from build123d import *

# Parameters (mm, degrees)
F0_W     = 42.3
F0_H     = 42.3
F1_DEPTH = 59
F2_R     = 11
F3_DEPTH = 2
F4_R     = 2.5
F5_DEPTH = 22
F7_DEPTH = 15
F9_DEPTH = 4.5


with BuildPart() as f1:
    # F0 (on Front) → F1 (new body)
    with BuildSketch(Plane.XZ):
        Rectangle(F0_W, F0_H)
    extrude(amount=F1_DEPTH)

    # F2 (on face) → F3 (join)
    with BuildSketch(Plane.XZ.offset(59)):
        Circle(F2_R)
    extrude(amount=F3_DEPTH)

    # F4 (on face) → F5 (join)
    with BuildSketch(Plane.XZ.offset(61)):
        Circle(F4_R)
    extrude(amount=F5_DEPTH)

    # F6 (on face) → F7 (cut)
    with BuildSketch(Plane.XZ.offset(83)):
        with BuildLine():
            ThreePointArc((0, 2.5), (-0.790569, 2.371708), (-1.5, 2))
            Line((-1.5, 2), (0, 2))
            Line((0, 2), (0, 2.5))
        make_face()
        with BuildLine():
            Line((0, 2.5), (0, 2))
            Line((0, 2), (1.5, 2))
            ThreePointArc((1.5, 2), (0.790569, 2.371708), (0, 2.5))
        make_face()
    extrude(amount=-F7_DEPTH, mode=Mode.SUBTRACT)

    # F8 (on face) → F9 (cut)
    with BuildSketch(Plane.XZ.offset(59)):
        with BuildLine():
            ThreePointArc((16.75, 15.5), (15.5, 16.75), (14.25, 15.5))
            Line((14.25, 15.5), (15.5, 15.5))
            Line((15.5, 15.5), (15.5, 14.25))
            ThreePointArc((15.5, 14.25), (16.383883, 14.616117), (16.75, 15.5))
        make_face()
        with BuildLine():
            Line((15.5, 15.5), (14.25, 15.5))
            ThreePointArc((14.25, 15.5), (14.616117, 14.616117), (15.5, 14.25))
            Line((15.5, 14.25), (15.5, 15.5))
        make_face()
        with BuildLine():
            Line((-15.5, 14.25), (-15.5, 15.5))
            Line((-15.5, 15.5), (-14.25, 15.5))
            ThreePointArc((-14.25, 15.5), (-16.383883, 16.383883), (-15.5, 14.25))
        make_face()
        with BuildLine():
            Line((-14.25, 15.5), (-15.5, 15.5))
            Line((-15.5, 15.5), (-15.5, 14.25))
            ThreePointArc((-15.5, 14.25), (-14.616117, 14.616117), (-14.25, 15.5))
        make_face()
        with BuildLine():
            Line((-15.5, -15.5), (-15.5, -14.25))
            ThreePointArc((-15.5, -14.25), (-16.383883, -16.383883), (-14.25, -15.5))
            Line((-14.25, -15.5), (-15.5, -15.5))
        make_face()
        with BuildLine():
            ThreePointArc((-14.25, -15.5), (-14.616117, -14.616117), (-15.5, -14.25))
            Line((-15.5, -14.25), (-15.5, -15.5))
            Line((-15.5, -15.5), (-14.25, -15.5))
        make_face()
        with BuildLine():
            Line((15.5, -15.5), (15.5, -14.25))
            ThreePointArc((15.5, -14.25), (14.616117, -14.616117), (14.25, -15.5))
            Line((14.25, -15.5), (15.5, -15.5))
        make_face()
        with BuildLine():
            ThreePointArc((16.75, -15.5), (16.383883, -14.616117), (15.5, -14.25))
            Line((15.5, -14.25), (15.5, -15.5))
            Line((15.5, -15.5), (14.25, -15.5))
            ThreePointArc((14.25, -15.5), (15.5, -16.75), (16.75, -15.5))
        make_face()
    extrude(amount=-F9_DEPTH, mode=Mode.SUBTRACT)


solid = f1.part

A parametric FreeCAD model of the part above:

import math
import FreeCAD as App
import Part
import Sketcher
from FreeCAD import Vector

doc = App.newDocument("Part")
body = doc.addObject("PartDesign::Body", "Body")

sketch1 = body.newObject("Sketcher::SketchObject", "Sketch")
sketch1.AttachmentSupport = (doc.getObject("XZ_Plane"), [""])
sketch1.MapMode = "FlatFace"
sketch1.addGeometry([
    Part.LineSegment(Vector(-21, 21, 0), Vector(-21, -21, 0)),
    Part.LineSegment(Vector(-21, -21, 0), Vector(21, -21, 0)),
    Part.LineSegment(Vector(21, -21, 0), Vector(21, 21, 0)),
    Part.LineSegment(Vector(21, 21, 0), Vector(-21, 21, 0)),
], False)
sketch1.addConstraint([
    Sketcher.Constraint("Coincident", 0, 2, 1, 1),
    Sketcher.Constraint("Coincident", 1, 2, 2, 1),
    Sketcher.Constraint("Coincident", 2, 2, 3, 1),
    Sketcher.Constraint("Coincident", 3, 2, 0, 1),
    Sketcher.Constraint("Vertical", 0),
    Sketcher.Constraint("Horizontal", 1),
    Sketcher.Constraint("Vertical", 2),
    Sketcher.Constraint("Horizontal", 3),
    Sketcher.Constraint("Symmetric", 0, 2, 2, 2, -1, 1),
    Sketcher.Constraint("Equal", 3, 0),
    Sketcher.Constraint("DistanceX", 1, 1, 1, 2, 42.3),
])
pad1 = body.newObject("PartDesign::Pad", "Pad")
pad1.Profile = sketch1
pad1.Length = 59

sketch2 = body.newObject("Sketcher::SketchObject", "Sketch001")
sketch2.AttachmentSupport = (doc.getObject("XZ_Plane"), [""])
sketch2.MapMode = "FlatFace"
sketch2.AttachmentOffset = App.Placement(Vector(0, 0, 59), App.Rotation())
sketch2.addGeometry(Part.Circle(Vector(0, 0, 0), Vector(0, 0, 1), 11), False)
sketch2.addConstraint([
    Sketcher.Constraint("Coincident", 0, 3, -1, 1),
    Sketcher.Constraint("Diameter", 0, 22.0),
])
pad2 = body.newObject("PartDesign::Pad", "Pad001")
pad2.Profile = sketch2
pad2.Length = 2

sketch3 = body.newObject("Sketcher::SketchObject", "Sketch002")
sketch3.AttachmentSupport = (doc.getObject("XZ_Plane"), [""])
sketch3.MapMode = "FlatFace"
sketch3.AttachmentOffset = App.Placement(Vector(0, 0, 61), App.Rotation())
sketch3.addGeometry(Part.Circle(Vector(0, 0, 0), Vector(0, 0, 1), 2.5), False)
sketch3.addConstraint([
    Sketcher.Constraint("Coincident", 0, 3, -1, 1),
    Sketcher.Constraint("Diameter", 0, 5.0),
])
pad3 = body.newObject("PartDesign::Pad", "Pad002")
pad3.Profile = sketch3
pad3.Length = 22

sketch4 = body.newObject("Sketcher::SketchObject", "Sketch003")
sketch4.AttachmentSupport = (doc.getObject("XZ_Plane"), [""])
sketch4.MapMode = "FlatFace"
sketch4.AttachmentOffset = App.Placement(Vector(0, 0, 83), App.Rotation())
sketch4.addGeometry([
    Part.ArcOfCircle(Part.Circle(Vector(0, 0, 0), Vector(0, 0, 1), 2.5), math.radians(90), math.radians(127)),
    Part.LineSegment(Vector(-1.5, 2, 0), Vector(1.5, 2, 0)),
    Part.ArcOfCircle(Part.Circle(Vector(0, 0, 0), Vector(0, 0, 1), 2.5), math.radians(53), math.radians(90)),
], False)
sketch4.addConstraint([
    Sketcher.Constraint("Coincident", 0, 2, 1, 1),
    Sketcher.Constraint("Coincident", 1, 2, 2, 1),
    Sketcher.Constraint("Tangent", 2, 2, 0, 1),
    Sketcher.Constraint("Horizontal", 1),
    Sketcher.Constraint("Coincident", 0, 3, -1, 1),
    Sketcher.Constraint("Equal", 0, 2),
    Sketcher.Constraint("PointOnObject", 2, 2, -2),
    Sketcher.Constraint("DistanceX", 1, 1, 1, 2, 3.0),
    Sketcher.Constraint("DistanceY", -1, 1, 0, 2, 2.0),
])
pocket1 = body.newObject("PartDesign::Pocket", "Pocket")
pocket1.Profile = sketch4
pocket1.Length = 15

sketch5 = body.newObject("Sketcher::SketchObject", "Sketch004")
sketch5.AttachmentSupport = (doc.getObject("XZ_Plane"), [""])
sketch5.MapMode = "FlatFace"
sketch5.AttachmentOffset = App.Placement(Vector(0, 0, 59), App.Rotation())
sketch5.addGeometry([
    Part.ArcOfCircle(Part.Circle(Vector(15.5, 15.5, 0), Vector(0, 0, 1), 1.2), math.radians(0), math.radians(180)),
    Part.ArcOfCircle(Part.Circle(Vector(15.5, 15.5, 0), Vector(0, 0, 1), 1.3), math.radians(-180), math.radians(-90)),
    Part.ArcOfCircle(Part.Circle(Vector(15.5, 15.5, 0), Vector(0, 0, 1), 1.3), math.radians(-90), math.radians(0)),
    Part.ArcOfCircle(Part.Circle(Vector(-15.5, 15.5, 0), Vector(0, 0, 1), 1.2), math.radians(0), math.radians(270)),
    Part.ArcOfCircle(Part.Circle(Vector(-15.5, 15.5, 0), Vector(0, 0, 1), 1.3), math.radians(-90), math.radians(0)),
    Part.ArcOfCircle(Part.Circle(Vector(-15.5, -15.5, 0), Vector(0, 0, 1), 1.2), math.radians(90), math.radians(360)),
    Part.ArcOfCircle(Part.Circle(Vector(-15.5, -15.5, 0), Vector(0, 0, 1), 1.3), math.radians(0), math.radians(90)),
    Part.ArcOfCircle(Part.Circle(Vector(15.5, -15.5, 0), Vector(0, 0, 1), 1.3), math.radians(90), math.radians(180)),
    Part.ArcOfCircle(Part.Circle(Vector(15.5, -15.5, 0), Vector(0, 0, 1), 1.2), math.radians(180), math.radians(360)),
    Part.ArcOfCircle(Part.Circle(Vector(15.5, -15.5, 0), Vector(0, 0, 1), 1.3), math.radians(0), math.radians(90)),
], False)
sketch5.addConstraint([
    Sketcher.Constraint("Tangent", 0, 2, 1, 1),
    Sketcher.Constraint("Coincident", 1, 2, 2, 1),
    Sketcher.Constraint("Tangent", 2, 2, 0, 1),
    Sketcher.Constraint("Tangent", 3, 1, 4, 2),
    Sketcher.Constraint("Coincident", 4, 1, 3, 2),
    Sketcher.Constraint("Tangent", 5, 1, 6, 2),
    Sketcher.Constraint("Coincident", 6, 1, 5, 2),
    Sketcher.Constraint("Tangent", 7, 2, 8, 1),
    Sketcher.Constraint("Tangent", 8, 2, 9, 1),
    Sketcher.Constraint("Coincident", 9, 2, 7, 1),
    Sketcher.Constraint("Equal", 0, 1),
    Sketcher.Constraint("Equal", 2, 3),
    Sketcher.Constraint("Equal", 4, 5),
    Sketcher.Constraint("Equal", 6, 7),
    Sketcher.Constraint("Equal", 7, 8),
    Sketcher.Constraint("Symmetric", 0, 3, 5, 3, -1, 1),
    Sketcher.Constraint("Symmetric", 3, 3, 7, 3, -1, 1),
    Sketcher.Constraint("Symmetric", 0, 3, 3, 3, -2),
    Sketcher.Constraint("Horizontal", 4, 3, 0, 2),
    Sketcher.Constraint("Horizontal", 0, 2, 2, 2),
    Sketcher.Constraint("Horizontal", 2, 2, 3, 1),
    Sketcher.Constraint("Horizontal", 9, 3, 6, 1),
    Sketcher.Constraint("Horizontal", 6, 1, 7, 2),
    Sketcher.Constraint("Horizontal", 7, 2, 8, 2),
    Sketcher.Constraint("Vertical", 9, 3, 1, 2),
    Sketcher.Constraint("Vertical", 6, 3, 4, 1),
    Sketcher.Constraint("Vertical", 4, 1, 5, 1),
    Sketcher.Constraint("Vertical", 1, 2, 9, 2),
    Sketcher.Constraint("Radius", 0, 1.25),
    Sketcher.Constraint("DistanceX", 3, 3, 2, 3, 30.999998),
    Sketcher.Constraint("DistanceY", 5, 3, 3, 3, 30.999999),
])
pocket2 = body.newObject("PartDesign::Pocket", "Pocket001")
pocket2.Profile = sketch5
pocket2.Length = 4.5

doc.recompute()
